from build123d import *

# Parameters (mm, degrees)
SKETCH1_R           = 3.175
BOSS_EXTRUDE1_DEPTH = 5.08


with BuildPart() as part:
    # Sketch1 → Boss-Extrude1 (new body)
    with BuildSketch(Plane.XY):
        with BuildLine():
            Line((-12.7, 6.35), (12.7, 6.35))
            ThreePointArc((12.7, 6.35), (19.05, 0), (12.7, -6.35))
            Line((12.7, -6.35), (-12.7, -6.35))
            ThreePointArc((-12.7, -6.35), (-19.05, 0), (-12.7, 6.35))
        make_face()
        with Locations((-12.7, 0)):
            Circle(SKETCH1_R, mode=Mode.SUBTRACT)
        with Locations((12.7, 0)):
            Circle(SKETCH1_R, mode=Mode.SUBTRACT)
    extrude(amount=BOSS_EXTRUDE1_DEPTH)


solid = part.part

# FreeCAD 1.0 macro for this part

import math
import FreeCAD as App
import Part
import Sketcher

V = App.Vector
Q = App.Units.Quantity

doc = App.newDocument("Part")
body = doc.addObject("PartDesign::Body", "Body")

sketch1 = doc.addObject("Sketcher::SketchObject", "Sketch")
body.addObject(sketch1)
sketch1.AttachmentSupport = (doc.XY_Plane, [""])
sketch1.MapMode = "FlatFace"
sketch1.addGeometry([
    Part.LineSegment(V(12.7, 6.35, 0), V(-12.7, 6.35, 0)),
    Part.ArcOfCircle(Part.Circle(V(-12.7, 0, 0), V(0, 0, 1), 6.35), math.radians(90), math.radians(270)),
    Part.LineSegment(V(-12.7, -6.35, 0), V(12.7, -6.35, 0)),
    Part.ArcOfCircle(Part.Circle(V(12.7, 0, 0), V(0, 0, 1), 6.35), math.radians(-90), math.radians(90)),
    Part.Circle(V(12.7, 0, 0), V(0, 0, 1), 3.175),
    Part.Circle(V(-12.7, 0, 0), V(0, 0, 1), 3.175),
], False)
sketch1.addConstraint([
    Sketcher.Constraint("Tangent", 0, 2, 1, 1),
    Sketcher.Constraint("Tangent", 1, 2, 2, 1),
    Sketcher.Constraint("Tangent", 2, 2, 3, 1),
    Sketcher.Constraint("Tangent", 3, 2, 0, 1),
    Sketcher.Constraint("Horizontal", 0),
    Sketcher.Constraint("Horizontal", 2),
    Sketcher.Constraint("Coincident", 4, 3, 3, 3),
    Sketcher.Constraint("Coincident", 5, 3, 1, 3),
    Sketcher.Constraint("Equal", 4, 5),
    Sketcher.Constraint("Symmetric", 1, 3, 3, 3, -1, 1),
    Sketcher.Constraint("Diameter", 4, Q("0.25 in")),
    Sketcher.Constraint("DistanceX", 0, 2, 0, 1, Q("1 in")),
    Sketcher.Constraint("Radius", 1, Q("0.25 in")),
])
pad1 = doc.addObject("PartDesign::Pad", "Pad")
body.addObject(pad1)
pad1.Profile = sketch1
pad1.Length = Q("0.2 in")

doc.recompute()
